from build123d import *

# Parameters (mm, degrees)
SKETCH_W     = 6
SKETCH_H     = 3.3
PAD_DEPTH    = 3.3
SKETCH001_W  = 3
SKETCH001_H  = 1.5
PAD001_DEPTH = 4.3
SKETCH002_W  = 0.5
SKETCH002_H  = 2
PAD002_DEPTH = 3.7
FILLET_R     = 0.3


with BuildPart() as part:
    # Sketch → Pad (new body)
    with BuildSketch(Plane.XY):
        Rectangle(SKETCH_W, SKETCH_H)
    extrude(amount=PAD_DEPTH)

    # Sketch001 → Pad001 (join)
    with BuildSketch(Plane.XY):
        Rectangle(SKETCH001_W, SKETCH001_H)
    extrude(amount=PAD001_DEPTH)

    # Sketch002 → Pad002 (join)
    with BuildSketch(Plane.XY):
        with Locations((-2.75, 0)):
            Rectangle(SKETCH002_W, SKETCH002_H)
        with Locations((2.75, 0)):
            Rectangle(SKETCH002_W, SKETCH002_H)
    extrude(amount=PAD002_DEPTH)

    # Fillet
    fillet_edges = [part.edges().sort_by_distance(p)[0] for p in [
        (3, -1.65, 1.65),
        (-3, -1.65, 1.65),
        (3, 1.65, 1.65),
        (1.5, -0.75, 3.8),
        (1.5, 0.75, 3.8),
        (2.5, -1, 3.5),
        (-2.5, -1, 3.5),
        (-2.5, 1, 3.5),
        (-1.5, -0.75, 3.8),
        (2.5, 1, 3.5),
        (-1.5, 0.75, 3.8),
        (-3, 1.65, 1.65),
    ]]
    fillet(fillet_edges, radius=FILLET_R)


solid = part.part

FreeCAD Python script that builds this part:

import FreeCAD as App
import Part
import Sketcher
from FreeCAD import Vector


def edges_at(feature, points):
    """Names of the edges that pass closest to the given points."""
    edges = feature.Shape.Edges
    near = lambda p: min(range(len(edges)), key=lambda i: edges[i].distToShape(Part.Vertex(*p))[0])
    return sorted({f"Edge{near(p) + 1}" for p in points})


def add_polygon(sketch, points):
    """Adds a closed chain of lines whose ends are joined by coincident constraints."""
    first, n = sketch.GeometryCount, len(points)
    for a, b in zip(points, points[1:] + points[:1]):
        sketch.addGeometry(Part.LineSegment(App.Vector(*a, 0), App.Vector(*b, 0)), False)
    for i in range(n):
        sketch.addConstraint(Sketcher.Constraint("Coincident", first + i, 2, first + (i + 1) % n, 1))

doc = App.newDocument("Part")
body = doc.addObject("PartDesign::Body", "Body")

# Sketch on XY plane
sketch1 = doc.addObject("Sketcher::SketchObject", "Sketch")
body.addObject(sketch1)
sketch1.AttachmentSupport = (doc.XY_Plane, [""])
sketch1.MapMode = "FlatFace"
add_polygon(sketch1, [(-3, 1.65), (-3, -1.65), (3, -1.65), (3, 1.65)])  # lines 0-3
sketch1.addConstraint([
    Sketcher.Constraint("Vertical", 0),
    Sketcher.Constraint("Horizontal", 1),
    Sketcher.Constraint("Vertical", 2),
    Sketcher.Constraint("Horizontal", 3),
    Sketcher.Constraint("Symmetric", 0, 2, 2, 2, -1, 1),
    Sketcher.Constraint("DistanceX", 1, 1, 1, 2, 6.0),
    Sketcher.Constraint("DistanceY", 0, 2, 0, 1, 3.3),
])
pad1 = doc.addObject("PartDesign::Pad", "Pad")
body.addObject(pad1)
pad1.Profile = sketch1
pad1.Length = 3.3

# Sketch on XY plane
sketch2 = doc.addObject("Sketcher::SketchObject", "Sketch001")
body.addObject(sketch2)
sketch2.AttachmentSupport = (doc.XY_Plane, [""])
sketch2.MapMode = "FlatFace"
add_polygon(sketch2, [(-1.5, 0.75), (-1.5, -0.75), (1.5, -0.75), (1.5, 0.75)])  # lines 0-3
sketch2.addConstraint([
    Sketcher.Constraint("Vertical", 0),
    Sketcher.Constraint("Horizontal", 1),
    Sketcher.Constraint("Vertical", 2),
    Sketcher.Constraint("Horizontal", 3),
    Sketcher.Constraint("Symmetric", 0, 2, 2, 2, -1, 1),
    Sketcher.Constraint("DistanceX", 1, 1, 1, 2, 3.0),
    Sketcher.Constraint("DistanceY", 0, 2, 0, 1, 1.5),
])
pad2 = doc.addObject("PartDesign::Pad", "Pad001")
body.addObject(pad2)
pad2.Profile = sketch2
pad2.Length = 4.3

# Sketch on XY plane
sketch3 = doc.addObject("Sketcher::SketchObject", "Sketch002")
body.addObject(sketch3)
sketch3.AttachmentSupport = (doc.XY_Plane, [""])
sketch3.MapMode = "FlatFace"
add_polygon(sketch3, [(-3, 1), (-3, -1), (-2.5, -1), (-2.5, 1)])  # lines 0-3
add_polygon(sketch3, [(2.5, 1), (2.5, -1), (3, -1), (3, 1)])  # lines 4-7
sketch3.addConstraint([
    Sketcher.Constraint("Vertical", 0),
    Sketcher.Constraint("Horizontal", 1),
    Sketcher.Constraint("Vertical", 2),
    Sketcher.Constraint("Horizontal", 3),
    Sketcher.Constraint("Vertical", 4),
    Sketcher.Constraint("Horizontal", 5),
    Sketcher.Constraint("Vertical", 6),
    Sketcher.Constraint("Horizontal", 7),
    Sketcher.Constraint("Symmetric", 2, 2, 4, 2, -1, 1),
    Sketcher.Constraint("Symmetric", 0, 2, 6, 2, -1, 1),
    Sketcher.Constraint("Horizontal", 1, 2, 4, 2),
    Sketcher.Constraint("DistanceY", 0, 2, 0, 1, 2.0),
    Sketcher.Constraint("DistanceX", 1, 1, 1, 2, 0.5),
    Sketcher.Constraint("DistanceX", 0, 2, -1, 1, 3.0),
])
pad3 = doc.addObject("PartDesign::Pad", "Pad002")
body.addObject(pad3)
pad3.Profile = sketch3
pad3.Length = 3.7
doc.recompute()

fillet = doc.addObject("PartDesign::Fillet", "Fillet")
body.addObject(fillet)
fillet.Base = (pad3, edges_at(pad3, [
    (3, -1.65, 1.65),
    (-3, -1.65, 1.65),
    (3, 1.65, 1.65),
    (1.5, -0.75, 3.8),
    (1.5, 0.75, 3.8),
    (2.5, -1, 3.5),
    (-2.5, -1, 3.5),
    (-2.5, 1, 3.5),
    (-1.5, -0.75, 3.8),
    (2.5, 1, 3.5),
    (-1.5, 0.75, 3.8),
    (-3, 1.65, 1.65),
]))
fillet.Radius = 0.3

doc.recompute()
